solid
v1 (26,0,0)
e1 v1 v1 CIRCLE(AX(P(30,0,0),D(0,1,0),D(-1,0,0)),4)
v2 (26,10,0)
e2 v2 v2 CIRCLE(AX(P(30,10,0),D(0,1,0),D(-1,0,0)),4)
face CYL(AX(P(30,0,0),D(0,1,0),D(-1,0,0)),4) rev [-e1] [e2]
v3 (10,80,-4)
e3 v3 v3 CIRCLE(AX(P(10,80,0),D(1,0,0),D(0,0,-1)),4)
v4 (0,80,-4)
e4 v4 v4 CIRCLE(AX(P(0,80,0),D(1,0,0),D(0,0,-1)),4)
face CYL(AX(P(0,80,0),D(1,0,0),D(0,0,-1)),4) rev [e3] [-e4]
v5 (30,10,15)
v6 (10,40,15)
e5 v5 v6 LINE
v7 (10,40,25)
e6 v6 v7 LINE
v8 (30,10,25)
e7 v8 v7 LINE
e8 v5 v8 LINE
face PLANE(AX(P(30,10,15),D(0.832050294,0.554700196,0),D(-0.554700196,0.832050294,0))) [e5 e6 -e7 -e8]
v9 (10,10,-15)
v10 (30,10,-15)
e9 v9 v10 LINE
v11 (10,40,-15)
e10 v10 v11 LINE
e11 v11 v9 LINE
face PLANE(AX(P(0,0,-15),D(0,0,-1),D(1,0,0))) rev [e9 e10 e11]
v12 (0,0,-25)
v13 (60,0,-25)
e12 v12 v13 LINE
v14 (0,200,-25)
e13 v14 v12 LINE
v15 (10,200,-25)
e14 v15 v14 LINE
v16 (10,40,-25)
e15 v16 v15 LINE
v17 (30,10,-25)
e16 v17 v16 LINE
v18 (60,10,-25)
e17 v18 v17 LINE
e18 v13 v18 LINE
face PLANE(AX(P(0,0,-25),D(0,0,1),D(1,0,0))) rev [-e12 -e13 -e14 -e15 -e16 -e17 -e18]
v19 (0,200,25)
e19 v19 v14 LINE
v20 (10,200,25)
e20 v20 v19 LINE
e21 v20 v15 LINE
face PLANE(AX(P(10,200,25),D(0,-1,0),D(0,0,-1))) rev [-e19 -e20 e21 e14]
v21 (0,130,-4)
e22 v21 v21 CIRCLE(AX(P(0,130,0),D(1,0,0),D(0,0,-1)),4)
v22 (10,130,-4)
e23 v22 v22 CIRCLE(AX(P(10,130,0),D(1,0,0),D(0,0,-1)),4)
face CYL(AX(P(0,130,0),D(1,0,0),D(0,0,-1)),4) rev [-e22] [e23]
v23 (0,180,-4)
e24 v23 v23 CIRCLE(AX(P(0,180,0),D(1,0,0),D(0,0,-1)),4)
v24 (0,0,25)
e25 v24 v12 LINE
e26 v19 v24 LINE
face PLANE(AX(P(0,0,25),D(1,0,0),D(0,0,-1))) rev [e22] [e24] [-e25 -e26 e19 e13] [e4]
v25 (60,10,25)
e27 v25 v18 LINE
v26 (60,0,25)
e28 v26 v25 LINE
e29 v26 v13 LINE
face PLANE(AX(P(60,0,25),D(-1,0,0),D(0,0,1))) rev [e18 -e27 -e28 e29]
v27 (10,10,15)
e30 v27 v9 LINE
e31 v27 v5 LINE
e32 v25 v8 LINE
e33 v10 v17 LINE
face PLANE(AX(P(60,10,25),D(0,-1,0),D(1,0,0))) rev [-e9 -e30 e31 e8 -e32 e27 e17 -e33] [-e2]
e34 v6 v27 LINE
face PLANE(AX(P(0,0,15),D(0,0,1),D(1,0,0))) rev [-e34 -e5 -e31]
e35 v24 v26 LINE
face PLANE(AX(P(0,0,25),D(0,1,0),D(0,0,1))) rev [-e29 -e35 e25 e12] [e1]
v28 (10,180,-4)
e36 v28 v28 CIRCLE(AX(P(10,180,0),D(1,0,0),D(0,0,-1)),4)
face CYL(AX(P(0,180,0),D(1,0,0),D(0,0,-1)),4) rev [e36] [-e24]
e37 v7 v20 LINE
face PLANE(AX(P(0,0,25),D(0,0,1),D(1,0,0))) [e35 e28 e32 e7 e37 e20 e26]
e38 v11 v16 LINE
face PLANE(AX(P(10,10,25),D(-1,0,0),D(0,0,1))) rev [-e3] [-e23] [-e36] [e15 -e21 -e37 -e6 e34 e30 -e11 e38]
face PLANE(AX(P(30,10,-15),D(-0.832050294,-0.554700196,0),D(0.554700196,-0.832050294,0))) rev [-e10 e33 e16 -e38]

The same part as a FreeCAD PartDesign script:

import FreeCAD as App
import Part
import Sketcher

doc = App.newDocument("Part")
body = doc.addObject("PartDesign::Body", "Body")

sketch1 = doc.addObject("Sketcher::SketchObject", "Sketch")
body.addObject(sketch1)
sketch1.AttachmentSupport = (doc.XY_Plane, [""])
sketch1.MapMode = "FlatFace"
sketch1.addGeometry([
    Part.LineSegment(App.Vector(0, 200, 0), App.Vector(0, 0, 0)),
    Part.LineSegment(App.Vector(0, 0, 0), App.Vector(60, 0, 0)),
    Part.LineSegment(App.Vector(60, 0, 0), App.Vector(60, 10, 0)),
    Part.LineSegment(App.Vector(60, 10, 0), App.Vector(10, 10, 0)),
    Part.LineSegment(App.Vector(10, 10, 0), App.Vector(10, 200, 0)),
    Part.LineSegment(App.Vector(10, 200, 0), App.Vector(0, 200, 0)),
], False)
sketch1.addConstraint([
    Sketcher.Constraint("Coincident", 0, 2, 1, 1),
    Sketcher.Constraint("Coincident", 1, 2, 2, 1),
    Sketcher.Constraint("Coincident", 2, 2, 3, 1),
    Sketcher.Constraint("Coincident", 3, 2, 4, 1),
    Sketcher.Constraint("Coincident", 4, 2, 5, 1),
    Sketcher.Constraint("Coincident", 5, 2, 0, 1),
    Sketcher.Constraint("Vertical", 0),
    Sketcher.Constraint("Horizontal", 1),
    Sketcher.Constraint("Vertical", 2),
    Sketcher.Constraint("Horizontal", 3),
    Sketcher.Constraint("Vertical", 4),
    Sketcher.Constraint("Horizontal", 5),
    Sketcher.Constraint("Coincident", 0, 2, -1, 1),
    Sketcher.Constraint("Equal", 5, 2),
    Sketcher.Constraint("DistanceX", 1, 1, 1, 2, 60.0),
    Sketcher.Constraint("DistanceX", 3, 2, 3, 1, 50.0),
    Sketcher.Constraint("DistanceY", 0, 2, 0, 1, 200.0),
])
pad1 = doc.addObject("PartDesign::Pad", "Pad")
body.addObject(pad1)
pad1.Profile = sketch1
pad1.Length = 50
pad1.Midplane = True

sketch2 = doc.addObject("Sketcher::SketchObject", "Sketch001")
body.addObject(sketch2)
sketch2.AttachmentSupport = (doc.XZ_Plane, [""])
sketch2.MapMode = "FlatFace"
sketch2.AttachmentOffset = App.Placement(App.Vector(0, 0, -10), App.Rotation())
sketch2.addGeometry(Part.Circle(App.Vector(30, 0, 0), App.Vector(0, 0, 1), 4), False)
sketch2.addConstraint([
    Sketcher.Constraint("PointOnObject", 0, 3, -1),
    Sketcher.Constraint("Diameter", 0, 8.0),
    Sketcher.Constraint("DistanceX", -1, 1, 0, 3, 30.0),
])
pocket1 = doc.addObject("PartDesign::Pocket", "Pocket")
body.addObject(pocket1)
pocket1.Profile = sketch2
pocket1.Type = "ThroughAll"
pocket1.Reversed = True

sketch3 = doc.addObject("Sketcher::SketchObject", "Sketch002")
body.addObject(sketch3)
sketch3.AttachmentSupport = (doc.YZ_Plane, [""])
sketch3.MapMode = "FlatFace"
sketch3.AttachmentOffset = App.Placement(App.Vector(0, 0, 10), App.Rotation())
sketch3.addGeometry([
    Part.Circle(App.Vector(180, 0, 0), App.Vector(0, 0, 1), 4),
    Part.Circle(App.Vector(130, 0, 0), App.Vector(0, 0, 1), 4),
    Part.Circle(App.Vector(80, 0, 0), App.Vector(0, 0, 1), 4),
], False)
sketch3.addConstraint([
    Sketcher.Constraint("Equal", 0, 1),
    Sketcher.Constraint("Equal", 1, 2),
    Sketcher.Constraint("PointOnObject", 0, 3, -1),
    Sketcher.Constraint("PointOnObject", 1, 3, -1),
    Sketcher.Constraint("PointOnObject", 2, 3, -1),
    Sketcher.Constraint("Diameter", 0, 8.0),
    Sketcher.Constraint("DistanceX", -1, 1, 0, 3, 180.0),
    Sketcher.Constraint("DistanceX", -1, 1, 1, 3, 130.0),
    Sketcher.Constraint("DistanceX", -1, 1, 2, 3, 80.0),
])
pocket2 = doc.addObject("PartDesign::Pocket", "Pocket001")
body.addObject(pocket2)
pocket2.Profile = sketch3
pocket2.Type = "ThroughAll"

sketch4 = doc.addObject("Sketcher::SketchObject", "Sketch003")
body.addObject(sketch4)
sketch4.AttachmentSupport = (doc.XY_Plane, [""])
sketch4.MapMode = "FlatFace"
sketch4.AttachmentOffset = App.Placement(App.Vector(0, 0, 25), App.Rotation())
sketch4.addGeometry([
    Part.LineSegment(App.Vector(10, 10, 0), App.Vector(30, 10, 0)),
    Part.LineSegment(App.Vector(30, 10, 0), App.Vector(10, 40, 0)),
    Part.LineSegment(App.Vector(10, 40, 0), App.Vector(10, 10, 0)),
], False)
sketch4.addConstraint([
    Sketcher.Constraint("Coincident", 0, 2, 1, 1),
    Sketcher.Constraint("Coincident", 1, 2, 2, 1),
    Sketcher.Constraint("Coincident", 2, 2, 0, 1),
    Sketcher.Constraint("Horizontal", 0),
    Sketcher.Constraint("Vertical", 2),
    Sketcher.Constraint("DistanceX", 0, 1, 0, 2, 20.0),
    Sketcher.Constraint("DistanceY", 2, 2, 2, 1, 30.0),
    Sketcher.Constraint("DistanceX", -1, 1, 0, 2, 30.0),
    Sketcher.Constraint("DistanceY", -1, 1, 0, 2, 10.0),
])
pad2 = doc.addObject("PartDesign::Pad", "Pad001")
body.addObject(pad2)
pad2.Profile = sketch4
pad2.Length = 10
pad2.Reversed = True
doc.recompute()

mirrored = doc.addObject("PartDesign::Mirrored", "Mirrored")
body.addObject(mirrored)
mirrored.Originals = [pad2]
mirrored.MirrorPlane = (doc.XY_Plane, [""])
body.Tip = mirrored

doc.recompute()
